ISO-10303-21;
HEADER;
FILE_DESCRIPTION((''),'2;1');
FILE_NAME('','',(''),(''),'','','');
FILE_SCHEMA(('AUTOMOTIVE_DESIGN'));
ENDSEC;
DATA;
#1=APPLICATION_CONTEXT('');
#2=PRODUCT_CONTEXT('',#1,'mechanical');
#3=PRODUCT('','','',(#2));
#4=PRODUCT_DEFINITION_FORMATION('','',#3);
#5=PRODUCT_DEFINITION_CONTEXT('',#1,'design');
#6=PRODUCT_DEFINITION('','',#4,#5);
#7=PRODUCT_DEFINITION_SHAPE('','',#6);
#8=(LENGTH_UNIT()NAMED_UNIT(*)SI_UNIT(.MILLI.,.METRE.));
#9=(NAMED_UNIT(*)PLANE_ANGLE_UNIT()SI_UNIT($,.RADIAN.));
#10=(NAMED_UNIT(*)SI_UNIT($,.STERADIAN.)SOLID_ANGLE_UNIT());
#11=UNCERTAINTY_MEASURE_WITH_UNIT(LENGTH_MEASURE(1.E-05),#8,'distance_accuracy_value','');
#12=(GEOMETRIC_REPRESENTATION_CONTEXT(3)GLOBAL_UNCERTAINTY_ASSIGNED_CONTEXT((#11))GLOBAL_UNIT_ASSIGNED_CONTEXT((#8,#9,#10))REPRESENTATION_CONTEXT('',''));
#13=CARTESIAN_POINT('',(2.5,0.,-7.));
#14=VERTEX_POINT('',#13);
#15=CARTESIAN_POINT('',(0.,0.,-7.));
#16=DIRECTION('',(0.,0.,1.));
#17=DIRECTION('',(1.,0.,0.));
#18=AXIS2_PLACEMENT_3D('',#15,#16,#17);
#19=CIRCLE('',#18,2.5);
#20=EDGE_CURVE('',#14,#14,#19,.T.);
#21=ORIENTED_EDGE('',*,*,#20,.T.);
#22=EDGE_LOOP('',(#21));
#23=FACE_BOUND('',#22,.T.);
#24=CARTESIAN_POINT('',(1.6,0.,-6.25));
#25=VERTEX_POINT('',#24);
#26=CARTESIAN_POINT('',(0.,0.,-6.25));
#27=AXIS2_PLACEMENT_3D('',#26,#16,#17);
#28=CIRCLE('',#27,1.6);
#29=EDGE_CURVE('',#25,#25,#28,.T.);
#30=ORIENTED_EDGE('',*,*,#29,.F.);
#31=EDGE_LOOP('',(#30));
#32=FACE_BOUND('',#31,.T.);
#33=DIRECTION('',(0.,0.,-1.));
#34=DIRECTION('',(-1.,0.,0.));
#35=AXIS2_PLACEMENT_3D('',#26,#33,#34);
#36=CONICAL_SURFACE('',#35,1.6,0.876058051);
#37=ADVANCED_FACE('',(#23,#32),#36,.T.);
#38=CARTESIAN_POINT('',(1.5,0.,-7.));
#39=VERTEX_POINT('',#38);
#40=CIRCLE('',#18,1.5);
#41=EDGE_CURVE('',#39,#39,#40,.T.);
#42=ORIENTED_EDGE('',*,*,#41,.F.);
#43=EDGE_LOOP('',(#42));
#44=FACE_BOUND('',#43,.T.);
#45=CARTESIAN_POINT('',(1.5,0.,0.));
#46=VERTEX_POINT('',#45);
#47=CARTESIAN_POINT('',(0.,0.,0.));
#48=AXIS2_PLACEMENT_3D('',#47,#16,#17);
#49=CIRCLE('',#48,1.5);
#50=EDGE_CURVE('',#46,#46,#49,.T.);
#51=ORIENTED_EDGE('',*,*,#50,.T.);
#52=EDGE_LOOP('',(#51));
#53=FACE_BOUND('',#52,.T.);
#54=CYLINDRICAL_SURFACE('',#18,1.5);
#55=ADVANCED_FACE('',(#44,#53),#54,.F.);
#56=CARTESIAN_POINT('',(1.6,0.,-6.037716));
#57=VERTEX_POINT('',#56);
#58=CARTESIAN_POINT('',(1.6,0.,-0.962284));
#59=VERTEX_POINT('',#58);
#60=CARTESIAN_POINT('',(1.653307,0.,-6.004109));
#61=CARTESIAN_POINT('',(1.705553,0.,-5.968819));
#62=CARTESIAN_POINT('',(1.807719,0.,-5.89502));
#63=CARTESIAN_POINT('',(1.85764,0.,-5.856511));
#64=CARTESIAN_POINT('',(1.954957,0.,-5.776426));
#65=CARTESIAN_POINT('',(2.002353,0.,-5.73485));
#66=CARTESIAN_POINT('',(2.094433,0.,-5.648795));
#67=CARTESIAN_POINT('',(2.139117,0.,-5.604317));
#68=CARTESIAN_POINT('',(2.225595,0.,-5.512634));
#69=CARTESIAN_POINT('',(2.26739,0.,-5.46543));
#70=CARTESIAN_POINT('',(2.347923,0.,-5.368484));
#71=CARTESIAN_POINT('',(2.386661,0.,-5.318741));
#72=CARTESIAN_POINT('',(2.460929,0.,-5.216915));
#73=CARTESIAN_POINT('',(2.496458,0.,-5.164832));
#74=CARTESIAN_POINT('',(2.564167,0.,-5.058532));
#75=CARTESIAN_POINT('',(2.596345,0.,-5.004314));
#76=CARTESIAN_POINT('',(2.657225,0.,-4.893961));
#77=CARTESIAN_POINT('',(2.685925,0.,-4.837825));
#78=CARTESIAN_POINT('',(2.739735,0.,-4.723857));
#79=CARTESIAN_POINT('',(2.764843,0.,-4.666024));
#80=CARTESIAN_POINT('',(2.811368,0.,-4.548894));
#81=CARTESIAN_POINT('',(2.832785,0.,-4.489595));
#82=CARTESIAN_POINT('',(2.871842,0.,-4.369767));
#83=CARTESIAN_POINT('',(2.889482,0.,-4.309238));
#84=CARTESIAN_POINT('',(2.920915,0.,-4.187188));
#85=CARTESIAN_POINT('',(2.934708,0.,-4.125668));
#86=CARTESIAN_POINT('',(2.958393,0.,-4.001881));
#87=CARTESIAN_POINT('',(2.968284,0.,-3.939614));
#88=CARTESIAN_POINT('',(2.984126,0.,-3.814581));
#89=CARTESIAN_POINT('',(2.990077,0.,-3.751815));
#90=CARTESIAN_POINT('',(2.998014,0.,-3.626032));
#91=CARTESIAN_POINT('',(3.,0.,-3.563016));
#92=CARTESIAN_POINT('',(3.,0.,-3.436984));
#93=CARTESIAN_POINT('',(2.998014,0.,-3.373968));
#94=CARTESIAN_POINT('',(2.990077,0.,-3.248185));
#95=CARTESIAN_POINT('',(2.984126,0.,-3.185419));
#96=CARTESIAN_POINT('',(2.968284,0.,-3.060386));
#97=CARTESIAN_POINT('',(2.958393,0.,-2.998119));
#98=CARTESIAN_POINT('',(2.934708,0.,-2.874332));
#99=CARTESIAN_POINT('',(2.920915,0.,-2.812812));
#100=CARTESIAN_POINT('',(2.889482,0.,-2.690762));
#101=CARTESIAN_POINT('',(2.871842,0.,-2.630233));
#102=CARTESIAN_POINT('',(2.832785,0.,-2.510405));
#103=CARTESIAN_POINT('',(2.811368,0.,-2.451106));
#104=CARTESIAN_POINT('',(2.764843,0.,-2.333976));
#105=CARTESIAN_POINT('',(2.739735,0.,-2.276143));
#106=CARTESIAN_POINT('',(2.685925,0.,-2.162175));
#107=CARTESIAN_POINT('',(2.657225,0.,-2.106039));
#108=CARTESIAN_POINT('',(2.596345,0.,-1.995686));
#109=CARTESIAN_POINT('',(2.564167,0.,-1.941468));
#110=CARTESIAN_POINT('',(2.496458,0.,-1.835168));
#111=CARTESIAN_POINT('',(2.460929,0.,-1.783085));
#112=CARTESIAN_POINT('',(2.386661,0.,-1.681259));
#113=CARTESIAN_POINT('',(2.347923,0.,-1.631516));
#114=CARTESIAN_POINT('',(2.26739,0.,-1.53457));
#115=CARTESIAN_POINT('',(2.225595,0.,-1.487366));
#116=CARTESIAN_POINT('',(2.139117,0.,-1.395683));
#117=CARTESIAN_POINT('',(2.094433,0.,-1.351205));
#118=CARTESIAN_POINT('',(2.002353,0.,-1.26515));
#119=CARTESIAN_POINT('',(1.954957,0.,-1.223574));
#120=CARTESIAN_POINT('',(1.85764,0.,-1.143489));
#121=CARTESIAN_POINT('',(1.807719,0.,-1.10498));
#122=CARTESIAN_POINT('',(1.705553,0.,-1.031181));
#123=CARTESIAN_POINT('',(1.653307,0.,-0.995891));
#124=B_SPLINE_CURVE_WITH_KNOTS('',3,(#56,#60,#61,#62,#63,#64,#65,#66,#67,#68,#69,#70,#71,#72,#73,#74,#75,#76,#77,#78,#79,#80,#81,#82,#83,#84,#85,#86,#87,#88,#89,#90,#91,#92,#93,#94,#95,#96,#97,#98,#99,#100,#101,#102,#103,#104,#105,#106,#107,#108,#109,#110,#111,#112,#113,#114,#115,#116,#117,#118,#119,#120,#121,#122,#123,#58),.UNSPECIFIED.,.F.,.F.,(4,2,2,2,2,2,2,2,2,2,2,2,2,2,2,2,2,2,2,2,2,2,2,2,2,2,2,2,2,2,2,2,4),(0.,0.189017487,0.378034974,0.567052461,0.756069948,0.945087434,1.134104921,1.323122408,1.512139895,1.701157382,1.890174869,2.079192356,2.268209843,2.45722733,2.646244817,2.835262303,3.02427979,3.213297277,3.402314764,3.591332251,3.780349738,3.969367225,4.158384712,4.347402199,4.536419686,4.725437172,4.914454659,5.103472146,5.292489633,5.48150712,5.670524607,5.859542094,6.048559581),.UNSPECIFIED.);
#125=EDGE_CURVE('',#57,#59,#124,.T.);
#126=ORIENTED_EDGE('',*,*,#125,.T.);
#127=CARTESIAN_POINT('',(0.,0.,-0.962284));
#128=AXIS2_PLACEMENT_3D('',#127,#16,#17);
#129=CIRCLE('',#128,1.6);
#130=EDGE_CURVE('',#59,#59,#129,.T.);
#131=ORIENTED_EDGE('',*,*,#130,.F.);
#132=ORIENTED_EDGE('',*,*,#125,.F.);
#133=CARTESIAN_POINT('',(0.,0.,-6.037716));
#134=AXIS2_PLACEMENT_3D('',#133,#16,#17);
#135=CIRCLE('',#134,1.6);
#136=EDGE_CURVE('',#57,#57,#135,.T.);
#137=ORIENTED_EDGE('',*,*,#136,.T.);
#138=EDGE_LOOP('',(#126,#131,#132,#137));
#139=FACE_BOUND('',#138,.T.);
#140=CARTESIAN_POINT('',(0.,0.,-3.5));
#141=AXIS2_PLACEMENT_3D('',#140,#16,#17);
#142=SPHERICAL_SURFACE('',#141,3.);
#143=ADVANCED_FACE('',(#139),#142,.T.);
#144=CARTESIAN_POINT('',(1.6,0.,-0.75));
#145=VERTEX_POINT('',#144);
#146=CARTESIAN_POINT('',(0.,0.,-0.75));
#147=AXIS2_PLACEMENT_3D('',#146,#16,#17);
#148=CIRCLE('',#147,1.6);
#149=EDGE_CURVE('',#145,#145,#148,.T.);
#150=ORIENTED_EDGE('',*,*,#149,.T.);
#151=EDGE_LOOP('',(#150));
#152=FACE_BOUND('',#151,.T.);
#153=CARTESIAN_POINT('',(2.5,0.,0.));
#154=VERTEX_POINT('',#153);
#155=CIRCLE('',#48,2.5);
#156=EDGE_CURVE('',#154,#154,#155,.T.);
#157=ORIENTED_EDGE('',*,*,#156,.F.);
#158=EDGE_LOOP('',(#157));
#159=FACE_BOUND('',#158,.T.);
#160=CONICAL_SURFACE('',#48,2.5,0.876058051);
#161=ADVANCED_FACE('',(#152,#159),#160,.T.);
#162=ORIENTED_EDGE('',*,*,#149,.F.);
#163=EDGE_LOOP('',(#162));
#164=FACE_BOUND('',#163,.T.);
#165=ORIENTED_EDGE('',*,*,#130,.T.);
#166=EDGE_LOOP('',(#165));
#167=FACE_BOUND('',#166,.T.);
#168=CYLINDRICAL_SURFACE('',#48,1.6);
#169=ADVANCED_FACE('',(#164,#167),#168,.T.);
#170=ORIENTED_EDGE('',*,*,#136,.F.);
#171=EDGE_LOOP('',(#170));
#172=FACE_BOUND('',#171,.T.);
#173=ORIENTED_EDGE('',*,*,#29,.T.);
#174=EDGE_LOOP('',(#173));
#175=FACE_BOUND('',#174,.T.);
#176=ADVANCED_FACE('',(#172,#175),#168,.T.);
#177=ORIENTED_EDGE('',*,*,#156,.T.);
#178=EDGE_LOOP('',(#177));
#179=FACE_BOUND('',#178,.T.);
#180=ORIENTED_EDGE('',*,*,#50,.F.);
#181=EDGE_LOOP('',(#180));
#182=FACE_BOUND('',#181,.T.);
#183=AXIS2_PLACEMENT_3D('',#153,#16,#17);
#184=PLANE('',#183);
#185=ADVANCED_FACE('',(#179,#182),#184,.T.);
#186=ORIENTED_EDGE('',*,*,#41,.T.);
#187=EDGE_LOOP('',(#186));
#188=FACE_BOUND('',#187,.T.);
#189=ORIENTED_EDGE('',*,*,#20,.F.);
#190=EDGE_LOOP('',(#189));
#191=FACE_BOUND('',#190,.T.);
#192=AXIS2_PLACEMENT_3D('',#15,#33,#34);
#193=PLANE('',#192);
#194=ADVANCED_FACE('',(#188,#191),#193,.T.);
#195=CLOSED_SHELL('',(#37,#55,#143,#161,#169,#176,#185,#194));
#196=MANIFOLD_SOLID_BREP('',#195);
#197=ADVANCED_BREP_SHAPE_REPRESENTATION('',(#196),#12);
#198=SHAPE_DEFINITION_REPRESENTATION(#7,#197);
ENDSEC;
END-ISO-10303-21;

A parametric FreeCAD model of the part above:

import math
import FreeCAD as App
import Part
import Sketcher

V = App.Vector

doc = App.newDocument("Part")
body = doc.addObject("PartDesign::Body", "Body")

# Sketch on XZ plane
sketch1 = body.newObject("Sketcher::SketchObject", "Sketch")
sketch1.AttachmentSupport = (doc.getObject("XZ_Plane"), [""])
sketch1.MapMode = "FlatFace"
sketch1.addGeometry([
    Part.LineSegment(V(0, -7, 0), V(0, 0, 0)),  # 0
    Part.LineSegment(V(0, 0, 0), V(2.5, 0, 0)),  # 1
    Part.LineSegment(V(2.5, 0, 0), V(1.6, -0.75, 0)),  # 2
    Part.LineSegment(V(1.6, -0.75, 0), V(1.6, -0.962284, 0)),  # 3
    Part.ArcOfCircle(Part.Circle(V(0, -3.5, 0), V(0, 0, 1), 3), math.radians(-57.769047), math.radians(57.769047)),  # 4
    Part.LineSegment(V(1.6, -6.037716, 0), V(1.6, -6.25, 0)),  # 5
    Part.LineSegment(V(1.6, -6.25, 0), V(2.5, -7, 0)),  # 6
    Part.LineSegment(V(2.5, -7, 0), V(0, -7, 0)),  # 7
], False)
sketch1.addConstraint([
    Sketcher.Constraint("Coincident", 0, 2, 1, 1),
    Sketcher.Constraint("Coincident", 1, 2, 2, 1),
    Sketcher.Constraint("Coincident", 2, 2, 3, 1),
    Sketcher.Constraint("Coincident", 3, 2, 4, 2),
    Sketcher.Constraint("Coincident", 4, 1, 5, 1),
    Sketcher.Constraint("Coincident", 5, 2, 6, 1),
    Sketcher.Constraint("Coincident", 6, 2, 7, 1),
    Sketcher.Constraint("Coincident", 7, 2, 0, 1),
    Sketcher.Constraint("Vertical", 0),
    Sketcher.Constraint("Horizontal", 1),
    Sketcher.Constraint("Vertical", 3),
    Sketcher.Constraint("Vertical", 5),
    Sketcher.Constraint("Horizontal", 7),
    Sketcher.Constraint("Coincident", 0, 2, -1, 1),
    Sketcher.Constraint("PointOnObject", 4, 3, -2),
    Sketcher.Constraint("Vertical", 3, 2, 4, 1),
    Sketcher.Constraint("Vertical", 1, 2, 6, 2),
    Sketcher.Constraint("Equal", 3, 5),
    Sketcher.Constraint("Equal", 2, 6),
    Sketcher.Constraint("Radius", 4, 3.0),
    Sketcher.Constraint("DistanceY", 0, 1, 0, 2, 7.0),
    Sketcher.Constraint("DistanceX", 1, 1, 1, 2, 2.5),
    Sketcher.Constraint("DistanceX", -1, 1, 2, 2, 1.6),
    Sketcher.Constraint("DistanceY", 5, 2, 2, 2, 5.5),
])
revolution = body.newObject("PartDesign::Revolution", "Revolution")
revolution.Profile = sketch1
revolution.ReferenceAxis = (sketch1, ["V_Axis"])
revolution.Angle = 360

# Sketch on XY plane
sketch2 = body.newObject("Sketcher::SketchObject", "Sketch001")
sketch2.AttachmentSupport = (doc.getObject("XY_Plane"), [""])
sketch2.MapMode = "FlatFace"
sketch2.addGeometry(Part.Circle(V(0, 0, 0), V(0, 0, 1), 1.5), False)
sketch2.addConstraint([
    Sketcher.Constraint("Coincident", 0, 3, -1, 1),
    Sketcher.Constraint("Diameter", 0, 3.0),
])
pocket1 = body.newObject("PartDesign::Pocket", "Pocket")
pocket1.Profile = sketch2
pocket1.Type = "ThroughAll"

doc.recompute()
